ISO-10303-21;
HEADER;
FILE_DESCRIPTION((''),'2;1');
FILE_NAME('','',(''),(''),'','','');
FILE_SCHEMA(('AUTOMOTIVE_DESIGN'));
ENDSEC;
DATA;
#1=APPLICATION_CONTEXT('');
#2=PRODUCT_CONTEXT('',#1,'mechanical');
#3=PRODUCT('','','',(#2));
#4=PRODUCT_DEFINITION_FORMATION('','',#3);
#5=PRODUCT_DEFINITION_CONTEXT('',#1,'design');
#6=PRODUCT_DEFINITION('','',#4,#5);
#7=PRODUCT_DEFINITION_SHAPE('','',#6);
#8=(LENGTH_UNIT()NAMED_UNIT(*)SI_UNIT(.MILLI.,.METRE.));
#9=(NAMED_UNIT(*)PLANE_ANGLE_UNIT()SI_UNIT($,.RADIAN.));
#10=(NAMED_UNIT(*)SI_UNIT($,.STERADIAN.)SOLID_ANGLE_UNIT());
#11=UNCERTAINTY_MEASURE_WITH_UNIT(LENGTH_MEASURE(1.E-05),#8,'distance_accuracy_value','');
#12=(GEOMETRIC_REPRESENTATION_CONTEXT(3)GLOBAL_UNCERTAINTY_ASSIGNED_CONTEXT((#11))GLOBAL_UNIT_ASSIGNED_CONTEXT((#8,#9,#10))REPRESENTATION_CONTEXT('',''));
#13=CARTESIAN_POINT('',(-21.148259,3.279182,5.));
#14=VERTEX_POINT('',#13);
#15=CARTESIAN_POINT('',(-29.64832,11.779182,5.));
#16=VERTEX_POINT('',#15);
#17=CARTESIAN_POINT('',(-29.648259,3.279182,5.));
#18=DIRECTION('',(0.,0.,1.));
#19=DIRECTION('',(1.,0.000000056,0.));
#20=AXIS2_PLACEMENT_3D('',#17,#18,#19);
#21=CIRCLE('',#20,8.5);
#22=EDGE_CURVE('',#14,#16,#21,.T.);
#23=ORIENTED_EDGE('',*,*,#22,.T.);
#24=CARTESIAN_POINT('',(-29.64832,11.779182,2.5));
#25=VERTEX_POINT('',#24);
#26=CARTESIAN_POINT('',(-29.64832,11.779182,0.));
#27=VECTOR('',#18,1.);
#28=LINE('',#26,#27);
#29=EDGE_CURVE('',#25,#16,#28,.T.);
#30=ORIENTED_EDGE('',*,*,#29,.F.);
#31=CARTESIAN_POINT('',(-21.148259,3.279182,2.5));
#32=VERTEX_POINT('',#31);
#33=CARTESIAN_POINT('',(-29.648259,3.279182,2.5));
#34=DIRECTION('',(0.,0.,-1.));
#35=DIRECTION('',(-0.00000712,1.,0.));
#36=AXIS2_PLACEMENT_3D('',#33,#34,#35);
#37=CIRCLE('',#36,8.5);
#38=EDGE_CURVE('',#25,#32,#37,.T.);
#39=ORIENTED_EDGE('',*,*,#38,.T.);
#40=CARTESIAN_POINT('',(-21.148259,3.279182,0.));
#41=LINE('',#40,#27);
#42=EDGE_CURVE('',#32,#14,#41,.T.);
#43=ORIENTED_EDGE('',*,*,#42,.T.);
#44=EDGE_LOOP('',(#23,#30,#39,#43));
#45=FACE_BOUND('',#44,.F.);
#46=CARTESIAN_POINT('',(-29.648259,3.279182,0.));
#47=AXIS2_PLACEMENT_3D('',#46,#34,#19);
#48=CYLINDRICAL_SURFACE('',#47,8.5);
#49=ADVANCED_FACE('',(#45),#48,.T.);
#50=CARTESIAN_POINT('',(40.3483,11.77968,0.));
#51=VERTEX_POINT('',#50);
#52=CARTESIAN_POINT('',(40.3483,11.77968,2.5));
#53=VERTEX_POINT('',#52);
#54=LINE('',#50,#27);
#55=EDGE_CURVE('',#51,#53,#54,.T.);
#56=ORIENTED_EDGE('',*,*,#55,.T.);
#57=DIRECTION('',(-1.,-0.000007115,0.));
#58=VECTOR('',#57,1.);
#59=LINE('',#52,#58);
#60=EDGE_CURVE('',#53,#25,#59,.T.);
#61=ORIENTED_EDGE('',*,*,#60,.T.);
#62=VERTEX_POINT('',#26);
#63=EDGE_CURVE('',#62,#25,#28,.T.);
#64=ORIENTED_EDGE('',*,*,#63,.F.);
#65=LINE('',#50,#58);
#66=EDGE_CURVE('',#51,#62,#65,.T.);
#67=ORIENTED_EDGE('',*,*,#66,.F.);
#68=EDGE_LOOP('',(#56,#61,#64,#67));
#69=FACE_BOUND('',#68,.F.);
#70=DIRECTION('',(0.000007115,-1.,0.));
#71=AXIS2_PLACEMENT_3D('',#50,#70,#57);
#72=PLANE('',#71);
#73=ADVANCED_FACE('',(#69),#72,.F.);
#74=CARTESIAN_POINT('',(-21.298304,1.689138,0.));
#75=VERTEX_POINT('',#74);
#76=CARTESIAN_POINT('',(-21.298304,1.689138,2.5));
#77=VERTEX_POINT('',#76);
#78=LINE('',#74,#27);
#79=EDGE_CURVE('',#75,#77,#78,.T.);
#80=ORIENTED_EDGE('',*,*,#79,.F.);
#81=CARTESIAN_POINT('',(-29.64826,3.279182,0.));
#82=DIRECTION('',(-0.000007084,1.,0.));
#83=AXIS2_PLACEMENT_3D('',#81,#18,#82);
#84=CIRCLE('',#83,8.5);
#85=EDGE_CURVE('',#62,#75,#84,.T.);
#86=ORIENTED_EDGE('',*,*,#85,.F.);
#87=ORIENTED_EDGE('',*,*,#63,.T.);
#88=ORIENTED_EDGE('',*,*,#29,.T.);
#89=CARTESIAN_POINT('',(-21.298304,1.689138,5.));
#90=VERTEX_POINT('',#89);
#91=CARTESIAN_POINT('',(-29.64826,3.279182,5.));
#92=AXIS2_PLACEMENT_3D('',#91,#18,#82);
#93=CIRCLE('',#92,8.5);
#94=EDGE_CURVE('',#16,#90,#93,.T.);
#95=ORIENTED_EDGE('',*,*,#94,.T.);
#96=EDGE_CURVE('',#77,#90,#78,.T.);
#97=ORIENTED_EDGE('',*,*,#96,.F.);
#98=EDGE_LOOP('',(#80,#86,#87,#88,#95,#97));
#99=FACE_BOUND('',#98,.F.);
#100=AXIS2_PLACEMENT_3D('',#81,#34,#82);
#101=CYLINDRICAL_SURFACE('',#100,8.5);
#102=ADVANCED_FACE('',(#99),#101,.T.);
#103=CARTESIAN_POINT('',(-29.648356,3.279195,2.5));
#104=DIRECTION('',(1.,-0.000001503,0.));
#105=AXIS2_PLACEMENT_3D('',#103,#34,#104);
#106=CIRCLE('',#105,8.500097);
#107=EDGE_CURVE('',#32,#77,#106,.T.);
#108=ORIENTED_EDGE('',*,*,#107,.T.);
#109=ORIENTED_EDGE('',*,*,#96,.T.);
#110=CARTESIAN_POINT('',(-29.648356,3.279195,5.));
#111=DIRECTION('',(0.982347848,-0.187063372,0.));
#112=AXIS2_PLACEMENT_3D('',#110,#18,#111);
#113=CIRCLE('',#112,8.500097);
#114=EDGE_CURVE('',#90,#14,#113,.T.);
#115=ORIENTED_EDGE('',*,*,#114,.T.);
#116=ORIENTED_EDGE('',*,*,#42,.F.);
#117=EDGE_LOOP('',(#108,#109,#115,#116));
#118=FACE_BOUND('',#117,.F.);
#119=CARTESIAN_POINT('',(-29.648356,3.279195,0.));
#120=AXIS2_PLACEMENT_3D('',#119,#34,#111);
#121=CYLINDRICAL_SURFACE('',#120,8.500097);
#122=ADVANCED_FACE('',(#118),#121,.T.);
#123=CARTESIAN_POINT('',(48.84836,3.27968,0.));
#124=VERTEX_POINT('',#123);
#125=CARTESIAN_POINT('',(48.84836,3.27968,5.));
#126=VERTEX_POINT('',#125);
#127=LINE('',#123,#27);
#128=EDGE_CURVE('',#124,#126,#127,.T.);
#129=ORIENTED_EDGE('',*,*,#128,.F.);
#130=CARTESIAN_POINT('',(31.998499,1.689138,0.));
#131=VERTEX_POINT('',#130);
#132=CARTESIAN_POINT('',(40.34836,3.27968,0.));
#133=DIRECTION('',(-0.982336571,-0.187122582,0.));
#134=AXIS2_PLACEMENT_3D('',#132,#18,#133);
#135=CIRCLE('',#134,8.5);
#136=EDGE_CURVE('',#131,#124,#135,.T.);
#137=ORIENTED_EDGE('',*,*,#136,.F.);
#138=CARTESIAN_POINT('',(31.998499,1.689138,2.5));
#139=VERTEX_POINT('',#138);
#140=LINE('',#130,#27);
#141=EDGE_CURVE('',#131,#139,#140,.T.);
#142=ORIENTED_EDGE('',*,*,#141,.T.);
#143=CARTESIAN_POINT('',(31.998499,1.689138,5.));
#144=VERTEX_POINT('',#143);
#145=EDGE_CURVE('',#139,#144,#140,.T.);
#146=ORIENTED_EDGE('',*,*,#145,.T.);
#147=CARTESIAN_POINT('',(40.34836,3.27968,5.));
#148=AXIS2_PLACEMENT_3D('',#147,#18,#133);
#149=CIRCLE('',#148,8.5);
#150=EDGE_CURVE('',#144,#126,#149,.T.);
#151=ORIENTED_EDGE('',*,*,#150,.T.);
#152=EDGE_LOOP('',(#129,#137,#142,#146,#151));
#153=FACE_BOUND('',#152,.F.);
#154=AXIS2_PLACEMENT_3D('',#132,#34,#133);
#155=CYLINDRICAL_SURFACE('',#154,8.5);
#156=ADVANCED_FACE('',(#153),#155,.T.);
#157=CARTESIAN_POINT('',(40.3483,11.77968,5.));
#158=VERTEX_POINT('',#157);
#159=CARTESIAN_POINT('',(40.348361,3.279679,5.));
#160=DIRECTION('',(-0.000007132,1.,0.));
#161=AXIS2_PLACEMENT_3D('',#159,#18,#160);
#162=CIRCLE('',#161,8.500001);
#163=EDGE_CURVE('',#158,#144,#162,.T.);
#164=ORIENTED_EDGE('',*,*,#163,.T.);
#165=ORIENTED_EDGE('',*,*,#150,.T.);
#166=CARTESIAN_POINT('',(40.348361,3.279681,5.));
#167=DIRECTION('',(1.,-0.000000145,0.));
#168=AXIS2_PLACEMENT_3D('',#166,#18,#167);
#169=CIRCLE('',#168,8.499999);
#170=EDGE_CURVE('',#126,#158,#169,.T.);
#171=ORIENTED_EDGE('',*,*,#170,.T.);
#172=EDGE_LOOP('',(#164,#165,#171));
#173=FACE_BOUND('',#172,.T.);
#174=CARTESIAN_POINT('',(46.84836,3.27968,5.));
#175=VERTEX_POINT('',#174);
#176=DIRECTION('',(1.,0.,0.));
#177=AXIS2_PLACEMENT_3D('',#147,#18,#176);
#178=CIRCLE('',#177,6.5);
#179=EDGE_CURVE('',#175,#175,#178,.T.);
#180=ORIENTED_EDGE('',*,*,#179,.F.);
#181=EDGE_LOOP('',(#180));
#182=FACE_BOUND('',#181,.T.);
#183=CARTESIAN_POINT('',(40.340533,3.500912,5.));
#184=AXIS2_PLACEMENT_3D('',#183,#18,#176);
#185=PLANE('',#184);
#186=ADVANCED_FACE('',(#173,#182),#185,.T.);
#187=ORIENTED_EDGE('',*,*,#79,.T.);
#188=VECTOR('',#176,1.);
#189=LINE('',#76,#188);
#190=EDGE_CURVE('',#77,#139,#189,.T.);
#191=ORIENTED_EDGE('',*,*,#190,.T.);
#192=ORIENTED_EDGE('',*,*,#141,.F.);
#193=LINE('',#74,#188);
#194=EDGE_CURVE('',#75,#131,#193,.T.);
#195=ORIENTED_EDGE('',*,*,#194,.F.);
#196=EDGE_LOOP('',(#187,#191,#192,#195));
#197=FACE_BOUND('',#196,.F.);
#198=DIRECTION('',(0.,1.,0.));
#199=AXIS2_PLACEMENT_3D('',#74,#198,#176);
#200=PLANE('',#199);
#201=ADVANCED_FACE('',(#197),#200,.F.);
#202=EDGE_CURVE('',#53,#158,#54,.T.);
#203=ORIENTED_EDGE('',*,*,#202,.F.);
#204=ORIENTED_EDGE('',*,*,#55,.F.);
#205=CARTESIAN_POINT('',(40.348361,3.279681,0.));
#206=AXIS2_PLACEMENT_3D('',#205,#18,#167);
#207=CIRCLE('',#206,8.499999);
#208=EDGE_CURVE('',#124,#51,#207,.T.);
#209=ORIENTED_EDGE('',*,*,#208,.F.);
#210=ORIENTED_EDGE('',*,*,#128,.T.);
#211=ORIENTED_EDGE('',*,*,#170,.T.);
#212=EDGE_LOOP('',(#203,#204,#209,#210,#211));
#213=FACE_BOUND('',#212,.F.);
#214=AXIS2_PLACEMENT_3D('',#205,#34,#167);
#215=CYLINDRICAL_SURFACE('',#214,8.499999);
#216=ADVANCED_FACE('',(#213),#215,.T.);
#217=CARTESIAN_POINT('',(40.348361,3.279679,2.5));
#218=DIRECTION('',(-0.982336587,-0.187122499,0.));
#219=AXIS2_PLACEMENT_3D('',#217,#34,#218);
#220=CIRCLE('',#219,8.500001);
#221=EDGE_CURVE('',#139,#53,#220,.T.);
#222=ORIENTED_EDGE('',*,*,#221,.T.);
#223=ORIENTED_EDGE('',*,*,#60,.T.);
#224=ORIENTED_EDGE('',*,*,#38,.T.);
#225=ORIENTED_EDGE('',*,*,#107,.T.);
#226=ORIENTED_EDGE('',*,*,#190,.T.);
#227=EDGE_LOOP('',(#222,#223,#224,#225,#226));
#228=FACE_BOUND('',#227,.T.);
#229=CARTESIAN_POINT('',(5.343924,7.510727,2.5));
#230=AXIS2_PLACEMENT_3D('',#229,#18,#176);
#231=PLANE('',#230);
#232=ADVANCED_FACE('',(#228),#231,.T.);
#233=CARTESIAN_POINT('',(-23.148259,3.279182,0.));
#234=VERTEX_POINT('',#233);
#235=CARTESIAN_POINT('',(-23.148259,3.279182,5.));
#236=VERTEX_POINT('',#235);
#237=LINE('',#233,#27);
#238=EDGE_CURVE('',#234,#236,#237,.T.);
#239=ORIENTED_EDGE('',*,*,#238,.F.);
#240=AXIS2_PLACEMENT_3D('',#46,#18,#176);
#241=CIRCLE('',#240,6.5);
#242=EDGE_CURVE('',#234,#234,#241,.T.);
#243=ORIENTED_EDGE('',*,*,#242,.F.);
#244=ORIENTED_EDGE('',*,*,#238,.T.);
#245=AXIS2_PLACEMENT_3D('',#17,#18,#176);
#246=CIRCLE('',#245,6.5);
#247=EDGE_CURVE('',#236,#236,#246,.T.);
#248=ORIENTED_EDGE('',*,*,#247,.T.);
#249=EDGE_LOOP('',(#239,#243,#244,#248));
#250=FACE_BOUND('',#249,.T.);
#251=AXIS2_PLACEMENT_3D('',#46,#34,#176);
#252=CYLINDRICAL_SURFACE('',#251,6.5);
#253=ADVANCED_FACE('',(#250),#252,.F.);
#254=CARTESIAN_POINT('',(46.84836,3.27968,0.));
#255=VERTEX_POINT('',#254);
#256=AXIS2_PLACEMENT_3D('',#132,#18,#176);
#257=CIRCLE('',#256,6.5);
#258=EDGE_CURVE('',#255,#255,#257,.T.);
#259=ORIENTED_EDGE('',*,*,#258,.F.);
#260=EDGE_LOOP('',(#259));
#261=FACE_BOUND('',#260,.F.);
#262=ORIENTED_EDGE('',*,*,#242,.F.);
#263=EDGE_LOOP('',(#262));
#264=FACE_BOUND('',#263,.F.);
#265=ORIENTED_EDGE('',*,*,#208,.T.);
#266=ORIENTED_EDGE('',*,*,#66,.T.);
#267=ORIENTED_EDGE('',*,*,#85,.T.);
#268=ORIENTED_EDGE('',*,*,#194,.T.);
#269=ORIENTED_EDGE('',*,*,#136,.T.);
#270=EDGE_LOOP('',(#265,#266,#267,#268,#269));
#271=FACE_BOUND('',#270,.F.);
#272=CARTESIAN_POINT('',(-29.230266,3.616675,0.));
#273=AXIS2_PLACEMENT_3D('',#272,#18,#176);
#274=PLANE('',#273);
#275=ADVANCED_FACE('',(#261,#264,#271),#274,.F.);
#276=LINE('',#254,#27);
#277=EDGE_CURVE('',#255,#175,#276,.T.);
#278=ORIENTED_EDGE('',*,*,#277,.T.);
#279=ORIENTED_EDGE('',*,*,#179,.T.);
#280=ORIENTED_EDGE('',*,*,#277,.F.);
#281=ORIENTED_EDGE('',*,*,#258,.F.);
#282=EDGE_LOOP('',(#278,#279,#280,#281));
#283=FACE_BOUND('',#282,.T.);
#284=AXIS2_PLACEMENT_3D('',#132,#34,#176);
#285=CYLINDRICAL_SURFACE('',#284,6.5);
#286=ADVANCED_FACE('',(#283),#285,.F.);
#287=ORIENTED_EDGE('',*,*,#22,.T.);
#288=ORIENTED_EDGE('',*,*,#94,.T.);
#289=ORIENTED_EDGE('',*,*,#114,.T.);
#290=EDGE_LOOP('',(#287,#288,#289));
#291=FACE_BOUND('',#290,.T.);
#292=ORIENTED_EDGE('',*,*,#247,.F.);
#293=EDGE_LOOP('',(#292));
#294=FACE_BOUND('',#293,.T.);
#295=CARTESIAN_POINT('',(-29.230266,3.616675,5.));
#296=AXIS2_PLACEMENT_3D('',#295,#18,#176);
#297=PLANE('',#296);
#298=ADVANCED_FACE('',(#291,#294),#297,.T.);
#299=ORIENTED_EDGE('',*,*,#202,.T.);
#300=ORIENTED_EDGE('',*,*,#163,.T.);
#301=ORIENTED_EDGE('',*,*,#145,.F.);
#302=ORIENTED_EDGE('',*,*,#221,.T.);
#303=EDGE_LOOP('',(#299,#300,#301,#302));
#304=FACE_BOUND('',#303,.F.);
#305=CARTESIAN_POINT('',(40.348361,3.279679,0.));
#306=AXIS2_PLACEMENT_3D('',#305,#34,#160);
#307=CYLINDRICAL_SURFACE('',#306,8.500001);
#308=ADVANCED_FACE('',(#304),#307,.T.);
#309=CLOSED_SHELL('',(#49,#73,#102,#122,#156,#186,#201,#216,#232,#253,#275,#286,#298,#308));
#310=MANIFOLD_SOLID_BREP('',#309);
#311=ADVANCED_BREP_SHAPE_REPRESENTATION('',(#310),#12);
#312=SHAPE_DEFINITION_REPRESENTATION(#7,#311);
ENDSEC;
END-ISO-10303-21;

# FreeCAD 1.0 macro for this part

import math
import FreeCAD as App
import Part
import Sketcher
from FreeCAD import Vector

doc = App.newDocument("Part")
body = doc.addObject("PartDesign::Body", "Body")

# Sketch on XY plane
sketch1 = body.newObject("Sketcher::SketchObject", "Sketch")
sketch1.AttachmentSupport = (doc.getObject("XY_Plane"), [""])
sketch1.MapMode = "FlatFace"
sketch1.addGeometry([
    Part.ArcOfCircle(Part.Circle(Vector(-29.6, 3.3, 0), Vector(0, 0, 1), 8.5), math.radians(0), math.radians(90)),  # 0
    Part.ArcOfCircle(Part.Circle(Vector(-29.6, 3.3, 0), Vector(0, 0, 1), 8.5), math.radians(-10.78), math.radians(0)),  # 1
    Part.LineSegment(Vector(-21.3, 1.7, 0), Vector(32, 1.7, 0)),  # 2
    Part.ArcOfCircle(Part.Circle(Vector(40.3, 3.3, 0), Vector(0, 0, 1), 8.5), math.radians(90), math.radians(191)),  # 3
    Part.LineSegment(Vector(40.3, 11.8, 0), Vector(-29.6, 11.8, 0)),  # 4
], False)
sketch1.addConstraint([
    Sketcher.Constraint("Tangent", 0, 1, 1, 2),
    Sketcher.Constraint("Coincident", 1, 1, 2, 1),
    Sketcher.Constraint("Coincident", 2, 2, 3, 2),
    Sketcher.Constraint("Tangent", 3, 1, 4, 1),
    Sketcher.Constraint("Tangent", 4, 2, 0, 2),
    Sketcher.Constraint("Horizontal", 2),
    Sketcher.Constraint("Equal", 0, 3),
    Sketcher.Constraint("Radius", 0, 8.5),
    Sketcher.Constraint("DistanceY", 0, 1, 4, 2, 8.5),
    Sketcher.Constraint("Radius", 1, 8.500097),
    Sketcher.Constraint("DistanceX", -1, 1, 2, 2, 31.998499),
    Sketcher.Constraint("DistanceX", -1, 1, 3, 1, 40.3483),
    Sketcher.Constraint("DistanceY", 0, 3, 3, 1, 8.500498),
    Sketcher.Constraint("Distance", 4, 69.99662),
    Sketcher.Constraint("DistanceY", -1, 1, 0, 3, 3.279182),
])
pad1 = body.newObject("PartDesign::Pad", "Pad")
pad1.Profile = sketch1
pad1.Length = 2.5

# Sketch on XY plane
sketch2 = body.newObject("Sketcher::SketchObject", "Sketch001")
sketch2.AttachmentSupport = (doc.getObject("XY_Plane"), [""])
sketch2.MapMode = "FlatFace"
sketch2.addGeometry([
    Part.ArcOfCircle(Part.Circle(Vector(-29.648356, 3.279195, 0), Vector(0, 0, 1), 8.500097), math.radians(-10.781455), math.radians(-0.000086)),  # 0
    Part.ArcOfCircle(Part.Circle(Vector(-29.648259, 3.279182, 0), Vector(0, 0, 1), 8.5), math.radians(0.000003), math.radians(90.000408)),  # 1
    Part.ArcOfCircle(Part.Circle(Vector(-29.64826, 3.279182, 0), Vector(0, 0, 1), 8.5), math.radians(90.000406), math.radians(349.218509)),  # 2
    Part.Circle(Vector(-29.648259, 3.279182, 0), Vector(0, 0, 1), 6.5),  # 3
    Part.ArcOfCircle(Part.Circle(Vector(40.348361, 3.279681, 0), Vector(0, 0, 1), 8.499999), math.radians(-0.000008), math.radians(90.000413)),  # 4
    Part.ArcOfCircle(Part.Circle(Vector(40.348361, 3.279679, 0), Vector(0, 0, 1), 8.500001), math.radians(90.000409), math.radians(190.784904)),  # 5
    Part.ArcOfCircle(Part.Circle(Vector(40.34836, 3.27968, 0), Vector(0, 0, 1), 8.5), math.radians(-169.215091), math.radians(0)),  # 6
    Part.Circle(Vector(40.34836, 3.27968, 0), Vector(0, 0, 1), 6.5),  # 7
], False)
sketch2.addConstraint([
    Sketcher.Constraint("Coincident", 0, 2, 1, 1),
    Sketcher.Constraint("Coincident", 1, 2, 2, 1),
    Sketcher.Constraint("Coincident", 2, 2, 0, 1),
    Sketcher.Constraint("Coincident", 4, 2, 5, 1),
    Sketcher.Constraint("Coincident", 5, 2, 6, 1),
    Sketcher.Constraint("Coincident", 6, 2, 4, 1),
    Sketcher.Constraint("Coincident", 2, 3, 1, 3),
    Sketcher.Constraint("Coincident", 3, 3, 1, 3),
    Sketcher.Constraint("Coincident", 5, 3, 4, 3),
    Sketcher.Constraint("Coincident", 7, 3, 4, 3),
    Sketcher.Constraint("Diameter", 3, 13.0),
    Sketcher.Constraint("Diameter", 7, 13.0),
    Sketcher.Constraint("Radius", 1, 8.5),
    Sketcher.Constraint("Radius", 4, 8.499999),
    Sketcher.Constraint("Radius", 6, 8.5),
    Sketcher.Constraint("DistanceY", 0, 2, 1, 2, 8.5),
    Sketcher.Constraint("DistanceY", 6, 2, 4, 2, 8.5),
    Sketcher.Constraint("Radius", 0, 8.500097),
    Sketcher.Constraint("DistanceX", -1, 1, 4, 2, 40.3483),
    Sketcher.Constraint("DistanceX", -1, 1, 5, 2, 31.998499),
    Sketcher.Constraint("DistanceY", 3, 3, 4, 3, 0.000499),
    Sketcher.Constraint("DistanceX", 1, 3, -1, 1, 29.648259),
    Sketcher.Constraint("DistanceY", -1, 1, 1, 3, 3.279182),
    Sketcher.Constraint("DistanceX", -1, 1, 4, 3, 40.348361),
    Sketcher.Constraint("DistanceX", 1, 2, -1, 1, 29.64832),
    Sketcher.Constraint("DistanceY", -1, 1, 2, 2, 1.689138),
])
pad2 = body.newObject("PartDesign::Pad", "Pad001")
pad2.Profile = sketch2
pad2.Length = 5

doc.recompute()
